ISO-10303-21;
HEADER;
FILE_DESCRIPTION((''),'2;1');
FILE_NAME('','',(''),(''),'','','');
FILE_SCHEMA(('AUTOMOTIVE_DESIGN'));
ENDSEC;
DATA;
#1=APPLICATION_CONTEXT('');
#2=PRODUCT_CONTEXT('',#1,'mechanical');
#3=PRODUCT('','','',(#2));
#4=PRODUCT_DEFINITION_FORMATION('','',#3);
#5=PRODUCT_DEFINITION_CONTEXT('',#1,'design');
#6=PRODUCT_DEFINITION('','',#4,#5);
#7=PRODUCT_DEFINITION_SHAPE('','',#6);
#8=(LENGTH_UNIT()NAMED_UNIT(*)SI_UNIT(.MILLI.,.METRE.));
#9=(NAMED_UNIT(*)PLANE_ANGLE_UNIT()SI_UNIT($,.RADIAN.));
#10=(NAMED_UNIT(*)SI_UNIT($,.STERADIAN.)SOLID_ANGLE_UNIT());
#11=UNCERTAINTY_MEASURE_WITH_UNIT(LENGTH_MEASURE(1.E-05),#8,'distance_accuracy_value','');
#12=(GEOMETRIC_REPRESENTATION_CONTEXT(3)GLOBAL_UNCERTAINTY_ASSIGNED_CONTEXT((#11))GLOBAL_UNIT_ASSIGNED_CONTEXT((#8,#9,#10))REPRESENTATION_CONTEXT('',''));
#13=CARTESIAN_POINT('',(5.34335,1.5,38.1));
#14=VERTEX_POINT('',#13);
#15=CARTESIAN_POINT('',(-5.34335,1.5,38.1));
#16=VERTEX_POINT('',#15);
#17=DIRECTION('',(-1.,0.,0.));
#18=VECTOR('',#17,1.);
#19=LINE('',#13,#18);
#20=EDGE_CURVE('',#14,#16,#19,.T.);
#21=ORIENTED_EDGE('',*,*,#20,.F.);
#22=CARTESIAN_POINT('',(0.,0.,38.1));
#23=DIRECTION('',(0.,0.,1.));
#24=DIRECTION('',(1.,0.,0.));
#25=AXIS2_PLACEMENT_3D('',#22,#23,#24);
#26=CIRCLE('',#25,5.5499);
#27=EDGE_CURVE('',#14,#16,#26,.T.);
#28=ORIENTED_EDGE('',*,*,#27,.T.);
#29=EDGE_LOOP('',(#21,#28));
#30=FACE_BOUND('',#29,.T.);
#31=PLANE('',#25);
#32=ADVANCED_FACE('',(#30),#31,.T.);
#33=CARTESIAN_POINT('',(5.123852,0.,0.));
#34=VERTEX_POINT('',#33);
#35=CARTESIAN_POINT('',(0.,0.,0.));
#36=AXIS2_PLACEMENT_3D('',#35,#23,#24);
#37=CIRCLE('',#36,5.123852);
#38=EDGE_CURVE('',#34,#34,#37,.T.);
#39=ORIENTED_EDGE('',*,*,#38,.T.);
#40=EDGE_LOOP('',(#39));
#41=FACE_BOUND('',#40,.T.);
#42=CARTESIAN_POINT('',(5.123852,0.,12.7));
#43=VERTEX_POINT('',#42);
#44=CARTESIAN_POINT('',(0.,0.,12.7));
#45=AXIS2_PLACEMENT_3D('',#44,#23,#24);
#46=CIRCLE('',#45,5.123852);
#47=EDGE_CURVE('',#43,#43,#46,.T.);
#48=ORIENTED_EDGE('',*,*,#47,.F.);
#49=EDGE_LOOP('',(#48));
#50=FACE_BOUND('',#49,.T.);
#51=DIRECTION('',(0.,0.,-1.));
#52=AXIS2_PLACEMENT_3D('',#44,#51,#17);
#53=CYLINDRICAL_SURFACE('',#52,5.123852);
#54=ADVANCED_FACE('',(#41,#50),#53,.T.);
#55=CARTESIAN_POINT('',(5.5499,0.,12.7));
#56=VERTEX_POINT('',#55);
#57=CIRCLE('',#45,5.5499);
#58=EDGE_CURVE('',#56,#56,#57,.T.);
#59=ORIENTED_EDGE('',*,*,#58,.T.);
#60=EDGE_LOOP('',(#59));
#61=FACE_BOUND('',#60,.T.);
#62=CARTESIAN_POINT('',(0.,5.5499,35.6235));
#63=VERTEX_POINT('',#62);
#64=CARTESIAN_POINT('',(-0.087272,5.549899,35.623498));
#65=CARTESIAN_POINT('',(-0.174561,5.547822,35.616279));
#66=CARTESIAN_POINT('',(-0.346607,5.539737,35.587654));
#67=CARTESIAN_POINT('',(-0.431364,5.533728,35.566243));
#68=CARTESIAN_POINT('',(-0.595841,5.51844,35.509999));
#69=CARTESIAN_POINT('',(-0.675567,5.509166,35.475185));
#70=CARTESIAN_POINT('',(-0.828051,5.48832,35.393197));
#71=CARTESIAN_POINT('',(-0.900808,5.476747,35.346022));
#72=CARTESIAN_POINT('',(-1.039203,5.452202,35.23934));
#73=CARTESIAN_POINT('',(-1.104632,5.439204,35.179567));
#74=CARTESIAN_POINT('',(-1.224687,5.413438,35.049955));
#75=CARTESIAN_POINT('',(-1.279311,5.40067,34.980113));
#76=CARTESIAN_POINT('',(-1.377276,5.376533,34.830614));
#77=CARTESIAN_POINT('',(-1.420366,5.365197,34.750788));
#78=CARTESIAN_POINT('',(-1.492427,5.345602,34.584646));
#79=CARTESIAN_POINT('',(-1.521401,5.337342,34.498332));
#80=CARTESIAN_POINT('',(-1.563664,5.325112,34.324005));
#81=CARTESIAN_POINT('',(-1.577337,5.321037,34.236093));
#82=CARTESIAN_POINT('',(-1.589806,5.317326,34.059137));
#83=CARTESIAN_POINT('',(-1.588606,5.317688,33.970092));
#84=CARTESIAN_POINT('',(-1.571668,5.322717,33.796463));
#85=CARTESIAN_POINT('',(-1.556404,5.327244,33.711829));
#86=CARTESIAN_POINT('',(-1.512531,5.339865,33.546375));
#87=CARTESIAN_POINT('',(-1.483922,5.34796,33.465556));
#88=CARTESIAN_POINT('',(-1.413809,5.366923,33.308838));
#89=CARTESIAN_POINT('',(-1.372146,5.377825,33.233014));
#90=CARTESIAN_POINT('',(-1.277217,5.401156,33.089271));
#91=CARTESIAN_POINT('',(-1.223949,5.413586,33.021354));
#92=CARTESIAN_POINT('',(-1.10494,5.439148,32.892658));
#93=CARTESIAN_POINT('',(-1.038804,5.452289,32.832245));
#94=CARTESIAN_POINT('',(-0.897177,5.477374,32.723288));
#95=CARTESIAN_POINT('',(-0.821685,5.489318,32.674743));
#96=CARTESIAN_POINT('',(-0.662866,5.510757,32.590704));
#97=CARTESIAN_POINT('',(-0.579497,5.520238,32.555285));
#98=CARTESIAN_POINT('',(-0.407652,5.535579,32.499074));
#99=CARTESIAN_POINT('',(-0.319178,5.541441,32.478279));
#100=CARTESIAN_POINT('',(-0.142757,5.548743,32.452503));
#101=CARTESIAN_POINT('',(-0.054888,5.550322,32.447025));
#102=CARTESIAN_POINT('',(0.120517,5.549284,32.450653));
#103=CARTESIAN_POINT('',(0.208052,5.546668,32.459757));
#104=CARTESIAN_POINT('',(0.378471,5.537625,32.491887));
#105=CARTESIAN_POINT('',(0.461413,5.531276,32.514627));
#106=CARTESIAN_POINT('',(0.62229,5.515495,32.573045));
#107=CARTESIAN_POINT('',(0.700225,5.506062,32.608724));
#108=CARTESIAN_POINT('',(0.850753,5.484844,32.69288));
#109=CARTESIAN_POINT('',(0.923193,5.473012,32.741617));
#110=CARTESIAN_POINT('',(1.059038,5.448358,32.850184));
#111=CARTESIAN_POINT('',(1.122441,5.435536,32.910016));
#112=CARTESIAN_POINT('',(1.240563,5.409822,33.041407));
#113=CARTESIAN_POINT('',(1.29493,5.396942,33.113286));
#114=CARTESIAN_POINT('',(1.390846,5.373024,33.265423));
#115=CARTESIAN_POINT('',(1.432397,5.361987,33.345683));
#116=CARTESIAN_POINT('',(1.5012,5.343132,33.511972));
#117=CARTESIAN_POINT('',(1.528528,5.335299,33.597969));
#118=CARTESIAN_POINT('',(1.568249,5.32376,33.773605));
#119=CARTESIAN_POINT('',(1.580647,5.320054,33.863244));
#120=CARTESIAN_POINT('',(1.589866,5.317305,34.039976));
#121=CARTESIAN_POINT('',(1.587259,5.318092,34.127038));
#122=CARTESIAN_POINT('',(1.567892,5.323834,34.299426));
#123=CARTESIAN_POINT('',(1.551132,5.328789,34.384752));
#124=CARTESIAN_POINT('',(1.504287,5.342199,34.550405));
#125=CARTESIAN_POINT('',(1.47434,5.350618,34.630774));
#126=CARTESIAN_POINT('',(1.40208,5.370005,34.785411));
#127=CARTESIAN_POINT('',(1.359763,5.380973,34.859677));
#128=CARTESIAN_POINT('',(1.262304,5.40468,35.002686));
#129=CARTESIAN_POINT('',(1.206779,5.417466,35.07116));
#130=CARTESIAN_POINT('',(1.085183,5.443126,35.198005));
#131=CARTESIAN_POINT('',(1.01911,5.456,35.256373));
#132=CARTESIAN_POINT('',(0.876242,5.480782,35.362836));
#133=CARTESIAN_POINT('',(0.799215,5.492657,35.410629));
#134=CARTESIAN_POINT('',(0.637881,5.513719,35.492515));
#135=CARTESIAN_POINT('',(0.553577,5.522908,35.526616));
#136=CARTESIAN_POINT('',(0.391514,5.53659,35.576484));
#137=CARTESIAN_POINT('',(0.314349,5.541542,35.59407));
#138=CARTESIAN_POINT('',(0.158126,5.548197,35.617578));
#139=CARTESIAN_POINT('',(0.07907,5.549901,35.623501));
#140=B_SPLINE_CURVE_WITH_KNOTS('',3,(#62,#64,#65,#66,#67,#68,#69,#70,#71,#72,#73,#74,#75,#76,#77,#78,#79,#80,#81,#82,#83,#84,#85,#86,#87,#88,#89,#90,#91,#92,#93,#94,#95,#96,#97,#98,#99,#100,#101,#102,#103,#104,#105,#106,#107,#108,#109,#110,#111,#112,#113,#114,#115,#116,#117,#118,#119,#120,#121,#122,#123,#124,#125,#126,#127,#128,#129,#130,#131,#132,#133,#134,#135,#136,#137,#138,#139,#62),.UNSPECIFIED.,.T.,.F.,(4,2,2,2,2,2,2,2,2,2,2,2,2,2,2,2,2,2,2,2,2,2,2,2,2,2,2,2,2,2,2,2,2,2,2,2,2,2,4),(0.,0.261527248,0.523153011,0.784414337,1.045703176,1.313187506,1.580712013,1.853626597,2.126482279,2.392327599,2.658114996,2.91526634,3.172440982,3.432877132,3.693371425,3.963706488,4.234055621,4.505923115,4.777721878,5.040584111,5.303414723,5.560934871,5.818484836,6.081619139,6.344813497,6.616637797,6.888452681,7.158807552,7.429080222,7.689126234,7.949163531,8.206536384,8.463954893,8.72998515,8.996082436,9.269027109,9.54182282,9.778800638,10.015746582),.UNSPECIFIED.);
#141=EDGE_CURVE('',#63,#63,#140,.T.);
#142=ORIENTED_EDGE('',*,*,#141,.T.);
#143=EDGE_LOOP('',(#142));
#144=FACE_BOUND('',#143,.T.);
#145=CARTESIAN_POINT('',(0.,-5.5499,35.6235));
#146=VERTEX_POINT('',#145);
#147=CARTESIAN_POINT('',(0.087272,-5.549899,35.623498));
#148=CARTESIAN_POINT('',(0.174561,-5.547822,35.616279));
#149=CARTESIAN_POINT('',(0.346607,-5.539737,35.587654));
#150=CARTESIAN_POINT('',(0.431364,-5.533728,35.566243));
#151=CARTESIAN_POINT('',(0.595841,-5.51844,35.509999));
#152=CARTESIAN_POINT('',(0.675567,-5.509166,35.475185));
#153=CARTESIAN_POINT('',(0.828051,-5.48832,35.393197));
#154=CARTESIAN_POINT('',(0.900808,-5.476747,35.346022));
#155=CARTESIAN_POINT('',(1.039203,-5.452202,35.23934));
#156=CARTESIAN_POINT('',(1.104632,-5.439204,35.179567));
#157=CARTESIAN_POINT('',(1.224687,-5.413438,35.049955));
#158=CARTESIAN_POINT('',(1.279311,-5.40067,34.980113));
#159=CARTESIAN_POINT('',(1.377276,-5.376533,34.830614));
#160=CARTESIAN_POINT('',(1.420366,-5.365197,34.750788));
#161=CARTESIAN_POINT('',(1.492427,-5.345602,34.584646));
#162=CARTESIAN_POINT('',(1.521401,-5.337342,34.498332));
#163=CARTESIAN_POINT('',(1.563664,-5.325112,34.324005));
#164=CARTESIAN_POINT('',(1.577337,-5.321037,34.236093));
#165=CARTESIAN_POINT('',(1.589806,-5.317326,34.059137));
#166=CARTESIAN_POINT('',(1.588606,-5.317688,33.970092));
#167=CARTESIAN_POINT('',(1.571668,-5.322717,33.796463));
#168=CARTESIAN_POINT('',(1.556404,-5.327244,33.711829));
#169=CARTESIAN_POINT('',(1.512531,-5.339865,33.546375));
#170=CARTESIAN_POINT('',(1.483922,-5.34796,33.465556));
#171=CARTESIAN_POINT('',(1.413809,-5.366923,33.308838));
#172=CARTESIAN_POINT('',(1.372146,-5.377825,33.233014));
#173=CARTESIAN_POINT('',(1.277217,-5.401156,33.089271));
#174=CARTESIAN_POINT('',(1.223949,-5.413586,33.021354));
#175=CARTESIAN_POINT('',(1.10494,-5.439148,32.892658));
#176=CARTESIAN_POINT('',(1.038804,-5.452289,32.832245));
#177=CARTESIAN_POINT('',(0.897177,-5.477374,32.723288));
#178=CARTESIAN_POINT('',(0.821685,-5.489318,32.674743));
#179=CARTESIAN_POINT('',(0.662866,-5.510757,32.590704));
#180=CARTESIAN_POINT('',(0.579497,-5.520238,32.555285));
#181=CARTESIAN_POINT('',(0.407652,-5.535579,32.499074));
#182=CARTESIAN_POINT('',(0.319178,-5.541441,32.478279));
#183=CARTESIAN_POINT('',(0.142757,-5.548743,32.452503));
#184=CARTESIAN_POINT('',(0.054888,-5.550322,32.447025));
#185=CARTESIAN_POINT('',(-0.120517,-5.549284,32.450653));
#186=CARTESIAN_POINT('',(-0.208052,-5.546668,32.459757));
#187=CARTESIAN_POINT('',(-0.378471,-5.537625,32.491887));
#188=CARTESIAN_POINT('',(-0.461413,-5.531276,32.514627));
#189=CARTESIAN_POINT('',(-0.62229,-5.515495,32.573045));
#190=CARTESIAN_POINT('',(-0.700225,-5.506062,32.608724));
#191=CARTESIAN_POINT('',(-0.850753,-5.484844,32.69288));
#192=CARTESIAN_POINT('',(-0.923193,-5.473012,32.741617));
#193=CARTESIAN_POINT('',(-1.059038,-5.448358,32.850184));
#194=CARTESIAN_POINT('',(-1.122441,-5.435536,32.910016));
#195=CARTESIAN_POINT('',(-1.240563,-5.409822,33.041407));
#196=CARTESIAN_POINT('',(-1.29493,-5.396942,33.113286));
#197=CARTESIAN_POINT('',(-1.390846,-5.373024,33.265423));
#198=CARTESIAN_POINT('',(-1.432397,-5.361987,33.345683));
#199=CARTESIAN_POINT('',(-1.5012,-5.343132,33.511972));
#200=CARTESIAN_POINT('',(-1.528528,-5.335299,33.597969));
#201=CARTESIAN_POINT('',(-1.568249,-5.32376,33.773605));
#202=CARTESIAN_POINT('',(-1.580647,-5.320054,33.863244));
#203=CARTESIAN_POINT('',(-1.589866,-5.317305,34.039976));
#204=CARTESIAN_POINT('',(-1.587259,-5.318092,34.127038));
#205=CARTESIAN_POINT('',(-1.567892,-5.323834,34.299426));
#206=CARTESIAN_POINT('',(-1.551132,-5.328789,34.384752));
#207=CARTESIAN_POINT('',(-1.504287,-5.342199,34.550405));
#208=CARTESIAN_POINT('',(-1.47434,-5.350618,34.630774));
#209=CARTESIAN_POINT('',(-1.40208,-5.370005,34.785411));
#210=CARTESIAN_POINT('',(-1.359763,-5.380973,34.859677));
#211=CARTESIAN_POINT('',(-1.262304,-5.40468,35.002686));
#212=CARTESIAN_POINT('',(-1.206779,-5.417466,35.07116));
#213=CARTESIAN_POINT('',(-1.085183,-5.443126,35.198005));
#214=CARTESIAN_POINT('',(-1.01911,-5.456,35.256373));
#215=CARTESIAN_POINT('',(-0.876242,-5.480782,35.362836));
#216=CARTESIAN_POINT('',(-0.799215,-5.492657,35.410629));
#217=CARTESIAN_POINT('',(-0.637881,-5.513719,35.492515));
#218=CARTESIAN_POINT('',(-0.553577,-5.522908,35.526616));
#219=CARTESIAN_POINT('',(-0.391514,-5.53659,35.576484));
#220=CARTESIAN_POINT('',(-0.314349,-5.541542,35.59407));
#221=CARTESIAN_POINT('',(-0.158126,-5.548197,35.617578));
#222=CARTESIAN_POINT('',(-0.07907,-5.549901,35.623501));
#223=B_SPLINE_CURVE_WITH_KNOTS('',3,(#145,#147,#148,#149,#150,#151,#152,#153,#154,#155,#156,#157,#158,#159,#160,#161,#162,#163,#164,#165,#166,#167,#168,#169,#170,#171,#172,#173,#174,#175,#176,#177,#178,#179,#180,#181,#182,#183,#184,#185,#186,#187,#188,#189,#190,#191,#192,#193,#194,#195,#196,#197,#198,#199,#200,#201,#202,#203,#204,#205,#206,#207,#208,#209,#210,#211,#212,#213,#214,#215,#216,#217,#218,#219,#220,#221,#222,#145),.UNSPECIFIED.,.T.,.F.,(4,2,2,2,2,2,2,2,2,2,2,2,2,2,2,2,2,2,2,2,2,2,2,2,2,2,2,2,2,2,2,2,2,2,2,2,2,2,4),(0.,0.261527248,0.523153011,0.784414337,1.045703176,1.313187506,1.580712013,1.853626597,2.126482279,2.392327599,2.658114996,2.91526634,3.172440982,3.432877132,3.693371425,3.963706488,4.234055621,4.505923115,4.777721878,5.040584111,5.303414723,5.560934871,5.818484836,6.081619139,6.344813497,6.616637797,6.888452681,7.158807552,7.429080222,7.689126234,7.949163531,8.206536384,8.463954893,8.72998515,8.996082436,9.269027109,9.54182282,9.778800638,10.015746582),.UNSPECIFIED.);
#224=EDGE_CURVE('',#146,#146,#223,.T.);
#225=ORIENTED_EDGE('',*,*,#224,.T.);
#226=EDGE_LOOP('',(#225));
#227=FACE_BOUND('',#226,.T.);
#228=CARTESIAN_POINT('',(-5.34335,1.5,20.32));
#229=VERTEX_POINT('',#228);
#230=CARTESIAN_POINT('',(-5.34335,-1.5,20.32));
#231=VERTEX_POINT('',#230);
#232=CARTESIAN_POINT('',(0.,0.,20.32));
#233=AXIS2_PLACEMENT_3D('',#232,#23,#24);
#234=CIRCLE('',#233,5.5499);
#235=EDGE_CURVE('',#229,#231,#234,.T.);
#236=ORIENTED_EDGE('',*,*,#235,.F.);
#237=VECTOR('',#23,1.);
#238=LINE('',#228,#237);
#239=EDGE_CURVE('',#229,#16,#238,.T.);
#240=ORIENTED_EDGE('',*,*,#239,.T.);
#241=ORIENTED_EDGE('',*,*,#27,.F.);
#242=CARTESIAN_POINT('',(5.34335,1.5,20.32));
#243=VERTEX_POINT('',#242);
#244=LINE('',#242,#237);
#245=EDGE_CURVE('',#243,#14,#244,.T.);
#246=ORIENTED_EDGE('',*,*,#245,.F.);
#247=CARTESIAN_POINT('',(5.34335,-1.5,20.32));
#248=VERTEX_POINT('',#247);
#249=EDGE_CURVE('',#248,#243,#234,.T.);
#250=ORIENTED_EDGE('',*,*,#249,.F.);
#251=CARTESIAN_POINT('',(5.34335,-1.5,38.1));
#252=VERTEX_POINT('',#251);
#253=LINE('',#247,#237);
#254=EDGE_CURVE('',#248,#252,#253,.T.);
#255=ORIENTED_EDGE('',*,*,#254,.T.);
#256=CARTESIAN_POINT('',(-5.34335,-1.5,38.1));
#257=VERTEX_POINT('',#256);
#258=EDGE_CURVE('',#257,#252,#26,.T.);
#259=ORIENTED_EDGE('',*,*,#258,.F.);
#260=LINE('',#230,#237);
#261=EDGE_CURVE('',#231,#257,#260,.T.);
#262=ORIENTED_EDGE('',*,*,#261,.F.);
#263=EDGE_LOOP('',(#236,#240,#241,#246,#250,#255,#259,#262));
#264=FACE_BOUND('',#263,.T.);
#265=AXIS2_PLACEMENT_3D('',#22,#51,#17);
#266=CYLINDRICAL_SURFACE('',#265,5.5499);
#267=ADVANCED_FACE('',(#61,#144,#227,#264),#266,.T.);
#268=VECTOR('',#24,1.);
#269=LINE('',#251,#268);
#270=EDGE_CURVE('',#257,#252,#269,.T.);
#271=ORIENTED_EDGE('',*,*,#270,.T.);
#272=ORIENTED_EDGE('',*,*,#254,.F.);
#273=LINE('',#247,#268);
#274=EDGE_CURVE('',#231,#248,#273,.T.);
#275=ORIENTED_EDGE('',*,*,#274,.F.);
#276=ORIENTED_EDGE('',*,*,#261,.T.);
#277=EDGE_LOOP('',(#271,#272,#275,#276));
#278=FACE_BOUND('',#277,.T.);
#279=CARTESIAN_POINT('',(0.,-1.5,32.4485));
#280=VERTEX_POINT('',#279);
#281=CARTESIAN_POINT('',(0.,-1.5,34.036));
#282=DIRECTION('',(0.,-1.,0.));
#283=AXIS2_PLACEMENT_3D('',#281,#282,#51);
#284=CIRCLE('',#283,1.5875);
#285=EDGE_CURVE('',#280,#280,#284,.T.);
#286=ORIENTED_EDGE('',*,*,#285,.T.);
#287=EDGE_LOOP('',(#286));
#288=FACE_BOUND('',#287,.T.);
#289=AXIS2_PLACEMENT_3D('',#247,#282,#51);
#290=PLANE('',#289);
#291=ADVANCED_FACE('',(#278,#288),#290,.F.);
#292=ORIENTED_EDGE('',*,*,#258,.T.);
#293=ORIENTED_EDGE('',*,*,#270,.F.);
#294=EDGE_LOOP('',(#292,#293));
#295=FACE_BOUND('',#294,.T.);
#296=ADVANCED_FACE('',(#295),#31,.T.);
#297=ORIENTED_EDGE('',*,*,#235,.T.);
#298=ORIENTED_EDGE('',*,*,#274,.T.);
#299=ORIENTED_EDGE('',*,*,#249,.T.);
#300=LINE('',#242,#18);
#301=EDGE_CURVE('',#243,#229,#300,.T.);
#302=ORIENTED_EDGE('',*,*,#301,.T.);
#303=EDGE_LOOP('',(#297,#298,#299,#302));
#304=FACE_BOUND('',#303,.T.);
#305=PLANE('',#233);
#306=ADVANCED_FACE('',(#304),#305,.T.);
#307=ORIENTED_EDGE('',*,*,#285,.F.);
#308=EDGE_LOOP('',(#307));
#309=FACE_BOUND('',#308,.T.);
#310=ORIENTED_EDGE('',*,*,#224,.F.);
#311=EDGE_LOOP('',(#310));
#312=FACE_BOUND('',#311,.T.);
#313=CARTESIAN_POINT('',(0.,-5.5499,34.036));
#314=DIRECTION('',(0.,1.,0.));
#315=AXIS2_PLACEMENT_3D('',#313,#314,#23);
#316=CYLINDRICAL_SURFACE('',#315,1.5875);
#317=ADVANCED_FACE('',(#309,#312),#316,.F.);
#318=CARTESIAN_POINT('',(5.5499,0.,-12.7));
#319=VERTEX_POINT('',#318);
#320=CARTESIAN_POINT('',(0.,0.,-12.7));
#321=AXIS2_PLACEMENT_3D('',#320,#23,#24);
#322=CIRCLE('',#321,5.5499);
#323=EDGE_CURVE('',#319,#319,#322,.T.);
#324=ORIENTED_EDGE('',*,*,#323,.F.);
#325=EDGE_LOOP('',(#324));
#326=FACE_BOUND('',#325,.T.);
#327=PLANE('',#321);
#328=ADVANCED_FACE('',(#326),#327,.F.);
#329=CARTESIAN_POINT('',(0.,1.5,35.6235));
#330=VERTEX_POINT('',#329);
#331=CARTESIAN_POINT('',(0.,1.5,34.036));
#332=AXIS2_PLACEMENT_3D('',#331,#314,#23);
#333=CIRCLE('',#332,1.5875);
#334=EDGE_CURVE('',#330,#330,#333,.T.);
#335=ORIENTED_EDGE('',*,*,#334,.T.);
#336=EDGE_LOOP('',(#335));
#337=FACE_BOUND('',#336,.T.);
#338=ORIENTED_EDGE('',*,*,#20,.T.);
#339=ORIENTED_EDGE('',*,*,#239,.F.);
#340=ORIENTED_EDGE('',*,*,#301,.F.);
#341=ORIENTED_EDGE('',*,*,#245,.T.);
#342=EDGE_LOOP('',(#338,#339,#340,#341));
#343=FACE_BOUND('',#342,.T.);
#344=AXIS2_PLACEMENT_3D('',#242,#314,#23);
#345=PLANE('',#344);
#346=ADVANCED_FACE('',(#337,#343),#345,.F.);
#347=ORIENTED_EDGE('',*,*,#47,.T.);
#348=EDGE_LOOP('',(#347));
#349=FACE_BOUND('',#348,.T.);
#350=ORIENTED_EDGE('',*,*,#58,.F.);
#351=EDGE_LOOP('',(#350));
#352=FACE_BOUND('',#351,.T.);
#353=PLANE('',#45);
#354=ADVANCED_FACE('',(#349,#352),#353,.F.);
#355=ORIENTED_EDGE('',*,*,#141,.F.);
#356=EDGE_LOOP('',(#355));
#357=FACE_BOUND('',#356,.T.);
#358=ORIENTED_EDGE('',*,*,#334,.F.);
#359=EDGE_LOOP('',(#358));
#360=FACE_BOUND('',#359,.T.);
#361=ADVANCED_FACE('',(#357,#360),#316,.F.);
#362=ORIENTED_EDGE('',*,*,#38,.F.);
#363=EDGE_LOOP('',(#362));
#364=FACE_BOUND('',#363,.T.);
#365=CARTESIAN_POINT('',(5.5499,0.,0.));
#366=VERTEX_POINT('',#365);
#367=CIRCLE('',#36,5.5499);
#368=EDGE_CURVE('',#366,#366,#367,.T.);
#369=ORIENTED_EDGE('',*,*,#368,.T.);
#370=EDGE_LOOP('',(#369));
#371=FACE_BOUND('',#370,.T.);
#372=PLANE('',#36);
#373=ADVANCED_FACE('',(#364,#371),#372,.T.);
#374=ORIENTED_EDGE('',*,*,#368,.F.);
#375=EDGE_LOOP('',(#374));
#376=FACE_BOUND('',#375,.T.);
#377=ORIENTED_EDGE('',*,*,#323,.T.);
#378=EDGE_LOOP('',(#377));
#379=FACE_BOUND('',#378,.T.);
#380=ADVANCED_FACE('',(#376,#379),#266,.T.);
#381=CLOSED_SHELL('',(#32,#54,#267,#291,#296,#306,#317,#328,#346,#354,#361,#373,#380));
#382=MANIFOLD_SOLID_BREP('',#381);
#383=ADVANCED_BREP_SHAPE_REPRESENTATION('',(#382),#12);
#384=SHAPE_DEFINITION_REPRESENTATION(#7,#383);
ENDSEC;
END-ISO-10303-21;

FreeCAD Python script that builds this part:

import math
import FreeCAD as App
import Part
import Sketcher

V = App.Vector
Q = App.Units.Quantity

doc = App.newDocument("Part")
body = doc.addObject("PartDesign::Body", "Body")

# Sketch on XY plane
sketch1 = body.newObject("Sketcher::SketchObject", "Sketch")
sketch1.AttachmentSupport = (doc.getObject("XY_Plane"), [""])
sketch1.MapMode = "FlatFace"
sketch1.addGeometry(Part.Circle(V(0, 0, 0), V(0, 0, 1), 6), False)
sketch1.addConstraint([
    Sketcher.Constraint("Coincident", 0, 3, -1, 1),
    Sketcher.Constraint("Diameter", 0, Q("0.437 in")),
])
pad1 = body.newObject("PartDesign::Pad", "Pad")
pad1.Profile = sketch1
pad1.Length = Q("1.5 in")

# Sketch on XY plane
sketch2 = body.newObject("Sketcher::SketchObject", "Sketch001")
sketch2.AttachmentSupport = (doc.getObject("XY_Plane"), [""])
sketch2.MapMode = "FlatFace"
sketch2.AttachmentOffset = App.Placement(V(0, 0, 1.5 * 25.4), App.Rotation())
sketch2.addGeometry([
    Part.LineSegment(V(5.3, 1.5, 0), V(-5.3, 1.5, 0)),
    Part.ArcOfCircle(Part.Circle(V(0, 0, 0), V(0, 0, 1), 5.5), math.radians(164), math.radians(196)),
    Part.LineSegment(V(-5.3, -1.5, 0), V(5.3, -1.5, 0)),
    Part.ArcOfCircle(Part.Circle(V(0, 0, 0), V(0, 0, 1), 5.5), math.radians(-16), math.radians(16)),
], False)
sketch2.addConstraint([
    Sketcher.Constraint("Coincident", 0, 2, 1, 1),
    Sketcher.Constraint("Coincident", 1, 2, 2, 1),
    Sketcher.Constraint("Coincident", 2, 2, 3, 1),
    Sketcher.Constraint("Coincident", 3, 2, 0, 1),
    Sketcher.Constraint("Horizontal", 0),
    Sketcher.Constraint("Horizontal", 2),
    Sketcher.Constraint("Coincident", 1, 3, -1, 1),
    Sketcher.Constraint("Coincident", 3, 3, -1, 1),
    Sketcher.Constraint("Equal", 1, 3),
    Sketcher.Constraint("Vertical", 0, 2, 1, 2),
    Sketcher.Constraint("Radius", 1, Q("0.2185 in")),
    Sketcher.Constraint("DistanceX", 0, 2, 0, 1, 10.6867),
])
pocket1 = body.newObject("PartDesign::Pocket", "Pocket")
pocket1.Profile = sketch2
pocket1.Length = Q("0.7 in")

# Sketch on XZ plane
sketch3 = body.newObject("Sketcher::SketchObject", "Sketch002")
sketch3.AttachmentSupport = (doc.getObject("XZ_Plane"), [""])
sketch3.MapMode = "FlatFace"
sketch3.AttachmentOffset = App.Placement(V(0, 0, 1.5), App.Rotation())
sketch3.addGeometry(Part.Circle(V(0, 34, 0), V(0, 0, 1), 1.6), False)
sketch3.addConstraint([
    Sketcher.Constraint("PointOnObject", 0, 3, -2),
    Sketcher.Constraint("Diameter", 0, Q("0.125 in")),
    Sketcher.Constraint("DistanceY", -1, 1, 0, 3, Q("1.34 in")),
])
pocket2 = body.newObject("PartDesign::Pocket", "Pocket001")
pocket2.Profile = sketch3
pocket2.Type = "ThroughAll"
pocket2.Midplane = True

# Sketch on XY plane
sketch4 = body.newObject("Sketcher::SketchObject", "Sketch003")
sketch4.AttachmentSupport = (doc.getObject("XY_Plane"), [""])
sketch4.MapMode = "FlatFace"
sketch4.addGeometry(Part.Circle(V(0, 0, 0), V(0, 0, 1), 6), False)
sketch4.addConstraint([
    Sketcher.Constraint("Coincident", 0, 3, -1, 1),
    Sketcher.Constraint("Diameter", 0, Q("0.437 in")),
])
pad2 = body.newObject("PartDesign::Pad", "Pad001")
pad2.Profile = sketch4
pad2.Length = Q("0.5 in")
pad2.Reversed = True

# Sketch on XY plane
sketch5 = body.newObject("Sketcher::SketchObject", "Sketch004")
sketch5.AttachmentSupport = (doc.getObject("XY_Plane"), [""])
sketch5.MapMode = "FlatFace"
sketch5.addGeometry([
    Part.Circle(V(0, 0, 0), V(0, 0, 1), 6),
    Part.Circle(V(0, 0, 0), V(0, 0, 1), 5),
], False)
sketch5.addConstraint([
    Sketcher.Constraint("Coincident", 0, 3, -1, 1),
    Sketcher.Constraint("Coincident", 1, 3, -1, 1),
    Sketcher.Constraint("Diameter", 0, Q("0.437 in")),
    Sketcher.Constraint("Diameter", 1, 10.247705),
])
pocket3 = body.newObject("PartDesign::Pocket", "Pocket002")
pocket3.Profile = sketch5
pocket3.Length = Q("0.5 in")
pocket3.Reversed = True

doc.recompute()
